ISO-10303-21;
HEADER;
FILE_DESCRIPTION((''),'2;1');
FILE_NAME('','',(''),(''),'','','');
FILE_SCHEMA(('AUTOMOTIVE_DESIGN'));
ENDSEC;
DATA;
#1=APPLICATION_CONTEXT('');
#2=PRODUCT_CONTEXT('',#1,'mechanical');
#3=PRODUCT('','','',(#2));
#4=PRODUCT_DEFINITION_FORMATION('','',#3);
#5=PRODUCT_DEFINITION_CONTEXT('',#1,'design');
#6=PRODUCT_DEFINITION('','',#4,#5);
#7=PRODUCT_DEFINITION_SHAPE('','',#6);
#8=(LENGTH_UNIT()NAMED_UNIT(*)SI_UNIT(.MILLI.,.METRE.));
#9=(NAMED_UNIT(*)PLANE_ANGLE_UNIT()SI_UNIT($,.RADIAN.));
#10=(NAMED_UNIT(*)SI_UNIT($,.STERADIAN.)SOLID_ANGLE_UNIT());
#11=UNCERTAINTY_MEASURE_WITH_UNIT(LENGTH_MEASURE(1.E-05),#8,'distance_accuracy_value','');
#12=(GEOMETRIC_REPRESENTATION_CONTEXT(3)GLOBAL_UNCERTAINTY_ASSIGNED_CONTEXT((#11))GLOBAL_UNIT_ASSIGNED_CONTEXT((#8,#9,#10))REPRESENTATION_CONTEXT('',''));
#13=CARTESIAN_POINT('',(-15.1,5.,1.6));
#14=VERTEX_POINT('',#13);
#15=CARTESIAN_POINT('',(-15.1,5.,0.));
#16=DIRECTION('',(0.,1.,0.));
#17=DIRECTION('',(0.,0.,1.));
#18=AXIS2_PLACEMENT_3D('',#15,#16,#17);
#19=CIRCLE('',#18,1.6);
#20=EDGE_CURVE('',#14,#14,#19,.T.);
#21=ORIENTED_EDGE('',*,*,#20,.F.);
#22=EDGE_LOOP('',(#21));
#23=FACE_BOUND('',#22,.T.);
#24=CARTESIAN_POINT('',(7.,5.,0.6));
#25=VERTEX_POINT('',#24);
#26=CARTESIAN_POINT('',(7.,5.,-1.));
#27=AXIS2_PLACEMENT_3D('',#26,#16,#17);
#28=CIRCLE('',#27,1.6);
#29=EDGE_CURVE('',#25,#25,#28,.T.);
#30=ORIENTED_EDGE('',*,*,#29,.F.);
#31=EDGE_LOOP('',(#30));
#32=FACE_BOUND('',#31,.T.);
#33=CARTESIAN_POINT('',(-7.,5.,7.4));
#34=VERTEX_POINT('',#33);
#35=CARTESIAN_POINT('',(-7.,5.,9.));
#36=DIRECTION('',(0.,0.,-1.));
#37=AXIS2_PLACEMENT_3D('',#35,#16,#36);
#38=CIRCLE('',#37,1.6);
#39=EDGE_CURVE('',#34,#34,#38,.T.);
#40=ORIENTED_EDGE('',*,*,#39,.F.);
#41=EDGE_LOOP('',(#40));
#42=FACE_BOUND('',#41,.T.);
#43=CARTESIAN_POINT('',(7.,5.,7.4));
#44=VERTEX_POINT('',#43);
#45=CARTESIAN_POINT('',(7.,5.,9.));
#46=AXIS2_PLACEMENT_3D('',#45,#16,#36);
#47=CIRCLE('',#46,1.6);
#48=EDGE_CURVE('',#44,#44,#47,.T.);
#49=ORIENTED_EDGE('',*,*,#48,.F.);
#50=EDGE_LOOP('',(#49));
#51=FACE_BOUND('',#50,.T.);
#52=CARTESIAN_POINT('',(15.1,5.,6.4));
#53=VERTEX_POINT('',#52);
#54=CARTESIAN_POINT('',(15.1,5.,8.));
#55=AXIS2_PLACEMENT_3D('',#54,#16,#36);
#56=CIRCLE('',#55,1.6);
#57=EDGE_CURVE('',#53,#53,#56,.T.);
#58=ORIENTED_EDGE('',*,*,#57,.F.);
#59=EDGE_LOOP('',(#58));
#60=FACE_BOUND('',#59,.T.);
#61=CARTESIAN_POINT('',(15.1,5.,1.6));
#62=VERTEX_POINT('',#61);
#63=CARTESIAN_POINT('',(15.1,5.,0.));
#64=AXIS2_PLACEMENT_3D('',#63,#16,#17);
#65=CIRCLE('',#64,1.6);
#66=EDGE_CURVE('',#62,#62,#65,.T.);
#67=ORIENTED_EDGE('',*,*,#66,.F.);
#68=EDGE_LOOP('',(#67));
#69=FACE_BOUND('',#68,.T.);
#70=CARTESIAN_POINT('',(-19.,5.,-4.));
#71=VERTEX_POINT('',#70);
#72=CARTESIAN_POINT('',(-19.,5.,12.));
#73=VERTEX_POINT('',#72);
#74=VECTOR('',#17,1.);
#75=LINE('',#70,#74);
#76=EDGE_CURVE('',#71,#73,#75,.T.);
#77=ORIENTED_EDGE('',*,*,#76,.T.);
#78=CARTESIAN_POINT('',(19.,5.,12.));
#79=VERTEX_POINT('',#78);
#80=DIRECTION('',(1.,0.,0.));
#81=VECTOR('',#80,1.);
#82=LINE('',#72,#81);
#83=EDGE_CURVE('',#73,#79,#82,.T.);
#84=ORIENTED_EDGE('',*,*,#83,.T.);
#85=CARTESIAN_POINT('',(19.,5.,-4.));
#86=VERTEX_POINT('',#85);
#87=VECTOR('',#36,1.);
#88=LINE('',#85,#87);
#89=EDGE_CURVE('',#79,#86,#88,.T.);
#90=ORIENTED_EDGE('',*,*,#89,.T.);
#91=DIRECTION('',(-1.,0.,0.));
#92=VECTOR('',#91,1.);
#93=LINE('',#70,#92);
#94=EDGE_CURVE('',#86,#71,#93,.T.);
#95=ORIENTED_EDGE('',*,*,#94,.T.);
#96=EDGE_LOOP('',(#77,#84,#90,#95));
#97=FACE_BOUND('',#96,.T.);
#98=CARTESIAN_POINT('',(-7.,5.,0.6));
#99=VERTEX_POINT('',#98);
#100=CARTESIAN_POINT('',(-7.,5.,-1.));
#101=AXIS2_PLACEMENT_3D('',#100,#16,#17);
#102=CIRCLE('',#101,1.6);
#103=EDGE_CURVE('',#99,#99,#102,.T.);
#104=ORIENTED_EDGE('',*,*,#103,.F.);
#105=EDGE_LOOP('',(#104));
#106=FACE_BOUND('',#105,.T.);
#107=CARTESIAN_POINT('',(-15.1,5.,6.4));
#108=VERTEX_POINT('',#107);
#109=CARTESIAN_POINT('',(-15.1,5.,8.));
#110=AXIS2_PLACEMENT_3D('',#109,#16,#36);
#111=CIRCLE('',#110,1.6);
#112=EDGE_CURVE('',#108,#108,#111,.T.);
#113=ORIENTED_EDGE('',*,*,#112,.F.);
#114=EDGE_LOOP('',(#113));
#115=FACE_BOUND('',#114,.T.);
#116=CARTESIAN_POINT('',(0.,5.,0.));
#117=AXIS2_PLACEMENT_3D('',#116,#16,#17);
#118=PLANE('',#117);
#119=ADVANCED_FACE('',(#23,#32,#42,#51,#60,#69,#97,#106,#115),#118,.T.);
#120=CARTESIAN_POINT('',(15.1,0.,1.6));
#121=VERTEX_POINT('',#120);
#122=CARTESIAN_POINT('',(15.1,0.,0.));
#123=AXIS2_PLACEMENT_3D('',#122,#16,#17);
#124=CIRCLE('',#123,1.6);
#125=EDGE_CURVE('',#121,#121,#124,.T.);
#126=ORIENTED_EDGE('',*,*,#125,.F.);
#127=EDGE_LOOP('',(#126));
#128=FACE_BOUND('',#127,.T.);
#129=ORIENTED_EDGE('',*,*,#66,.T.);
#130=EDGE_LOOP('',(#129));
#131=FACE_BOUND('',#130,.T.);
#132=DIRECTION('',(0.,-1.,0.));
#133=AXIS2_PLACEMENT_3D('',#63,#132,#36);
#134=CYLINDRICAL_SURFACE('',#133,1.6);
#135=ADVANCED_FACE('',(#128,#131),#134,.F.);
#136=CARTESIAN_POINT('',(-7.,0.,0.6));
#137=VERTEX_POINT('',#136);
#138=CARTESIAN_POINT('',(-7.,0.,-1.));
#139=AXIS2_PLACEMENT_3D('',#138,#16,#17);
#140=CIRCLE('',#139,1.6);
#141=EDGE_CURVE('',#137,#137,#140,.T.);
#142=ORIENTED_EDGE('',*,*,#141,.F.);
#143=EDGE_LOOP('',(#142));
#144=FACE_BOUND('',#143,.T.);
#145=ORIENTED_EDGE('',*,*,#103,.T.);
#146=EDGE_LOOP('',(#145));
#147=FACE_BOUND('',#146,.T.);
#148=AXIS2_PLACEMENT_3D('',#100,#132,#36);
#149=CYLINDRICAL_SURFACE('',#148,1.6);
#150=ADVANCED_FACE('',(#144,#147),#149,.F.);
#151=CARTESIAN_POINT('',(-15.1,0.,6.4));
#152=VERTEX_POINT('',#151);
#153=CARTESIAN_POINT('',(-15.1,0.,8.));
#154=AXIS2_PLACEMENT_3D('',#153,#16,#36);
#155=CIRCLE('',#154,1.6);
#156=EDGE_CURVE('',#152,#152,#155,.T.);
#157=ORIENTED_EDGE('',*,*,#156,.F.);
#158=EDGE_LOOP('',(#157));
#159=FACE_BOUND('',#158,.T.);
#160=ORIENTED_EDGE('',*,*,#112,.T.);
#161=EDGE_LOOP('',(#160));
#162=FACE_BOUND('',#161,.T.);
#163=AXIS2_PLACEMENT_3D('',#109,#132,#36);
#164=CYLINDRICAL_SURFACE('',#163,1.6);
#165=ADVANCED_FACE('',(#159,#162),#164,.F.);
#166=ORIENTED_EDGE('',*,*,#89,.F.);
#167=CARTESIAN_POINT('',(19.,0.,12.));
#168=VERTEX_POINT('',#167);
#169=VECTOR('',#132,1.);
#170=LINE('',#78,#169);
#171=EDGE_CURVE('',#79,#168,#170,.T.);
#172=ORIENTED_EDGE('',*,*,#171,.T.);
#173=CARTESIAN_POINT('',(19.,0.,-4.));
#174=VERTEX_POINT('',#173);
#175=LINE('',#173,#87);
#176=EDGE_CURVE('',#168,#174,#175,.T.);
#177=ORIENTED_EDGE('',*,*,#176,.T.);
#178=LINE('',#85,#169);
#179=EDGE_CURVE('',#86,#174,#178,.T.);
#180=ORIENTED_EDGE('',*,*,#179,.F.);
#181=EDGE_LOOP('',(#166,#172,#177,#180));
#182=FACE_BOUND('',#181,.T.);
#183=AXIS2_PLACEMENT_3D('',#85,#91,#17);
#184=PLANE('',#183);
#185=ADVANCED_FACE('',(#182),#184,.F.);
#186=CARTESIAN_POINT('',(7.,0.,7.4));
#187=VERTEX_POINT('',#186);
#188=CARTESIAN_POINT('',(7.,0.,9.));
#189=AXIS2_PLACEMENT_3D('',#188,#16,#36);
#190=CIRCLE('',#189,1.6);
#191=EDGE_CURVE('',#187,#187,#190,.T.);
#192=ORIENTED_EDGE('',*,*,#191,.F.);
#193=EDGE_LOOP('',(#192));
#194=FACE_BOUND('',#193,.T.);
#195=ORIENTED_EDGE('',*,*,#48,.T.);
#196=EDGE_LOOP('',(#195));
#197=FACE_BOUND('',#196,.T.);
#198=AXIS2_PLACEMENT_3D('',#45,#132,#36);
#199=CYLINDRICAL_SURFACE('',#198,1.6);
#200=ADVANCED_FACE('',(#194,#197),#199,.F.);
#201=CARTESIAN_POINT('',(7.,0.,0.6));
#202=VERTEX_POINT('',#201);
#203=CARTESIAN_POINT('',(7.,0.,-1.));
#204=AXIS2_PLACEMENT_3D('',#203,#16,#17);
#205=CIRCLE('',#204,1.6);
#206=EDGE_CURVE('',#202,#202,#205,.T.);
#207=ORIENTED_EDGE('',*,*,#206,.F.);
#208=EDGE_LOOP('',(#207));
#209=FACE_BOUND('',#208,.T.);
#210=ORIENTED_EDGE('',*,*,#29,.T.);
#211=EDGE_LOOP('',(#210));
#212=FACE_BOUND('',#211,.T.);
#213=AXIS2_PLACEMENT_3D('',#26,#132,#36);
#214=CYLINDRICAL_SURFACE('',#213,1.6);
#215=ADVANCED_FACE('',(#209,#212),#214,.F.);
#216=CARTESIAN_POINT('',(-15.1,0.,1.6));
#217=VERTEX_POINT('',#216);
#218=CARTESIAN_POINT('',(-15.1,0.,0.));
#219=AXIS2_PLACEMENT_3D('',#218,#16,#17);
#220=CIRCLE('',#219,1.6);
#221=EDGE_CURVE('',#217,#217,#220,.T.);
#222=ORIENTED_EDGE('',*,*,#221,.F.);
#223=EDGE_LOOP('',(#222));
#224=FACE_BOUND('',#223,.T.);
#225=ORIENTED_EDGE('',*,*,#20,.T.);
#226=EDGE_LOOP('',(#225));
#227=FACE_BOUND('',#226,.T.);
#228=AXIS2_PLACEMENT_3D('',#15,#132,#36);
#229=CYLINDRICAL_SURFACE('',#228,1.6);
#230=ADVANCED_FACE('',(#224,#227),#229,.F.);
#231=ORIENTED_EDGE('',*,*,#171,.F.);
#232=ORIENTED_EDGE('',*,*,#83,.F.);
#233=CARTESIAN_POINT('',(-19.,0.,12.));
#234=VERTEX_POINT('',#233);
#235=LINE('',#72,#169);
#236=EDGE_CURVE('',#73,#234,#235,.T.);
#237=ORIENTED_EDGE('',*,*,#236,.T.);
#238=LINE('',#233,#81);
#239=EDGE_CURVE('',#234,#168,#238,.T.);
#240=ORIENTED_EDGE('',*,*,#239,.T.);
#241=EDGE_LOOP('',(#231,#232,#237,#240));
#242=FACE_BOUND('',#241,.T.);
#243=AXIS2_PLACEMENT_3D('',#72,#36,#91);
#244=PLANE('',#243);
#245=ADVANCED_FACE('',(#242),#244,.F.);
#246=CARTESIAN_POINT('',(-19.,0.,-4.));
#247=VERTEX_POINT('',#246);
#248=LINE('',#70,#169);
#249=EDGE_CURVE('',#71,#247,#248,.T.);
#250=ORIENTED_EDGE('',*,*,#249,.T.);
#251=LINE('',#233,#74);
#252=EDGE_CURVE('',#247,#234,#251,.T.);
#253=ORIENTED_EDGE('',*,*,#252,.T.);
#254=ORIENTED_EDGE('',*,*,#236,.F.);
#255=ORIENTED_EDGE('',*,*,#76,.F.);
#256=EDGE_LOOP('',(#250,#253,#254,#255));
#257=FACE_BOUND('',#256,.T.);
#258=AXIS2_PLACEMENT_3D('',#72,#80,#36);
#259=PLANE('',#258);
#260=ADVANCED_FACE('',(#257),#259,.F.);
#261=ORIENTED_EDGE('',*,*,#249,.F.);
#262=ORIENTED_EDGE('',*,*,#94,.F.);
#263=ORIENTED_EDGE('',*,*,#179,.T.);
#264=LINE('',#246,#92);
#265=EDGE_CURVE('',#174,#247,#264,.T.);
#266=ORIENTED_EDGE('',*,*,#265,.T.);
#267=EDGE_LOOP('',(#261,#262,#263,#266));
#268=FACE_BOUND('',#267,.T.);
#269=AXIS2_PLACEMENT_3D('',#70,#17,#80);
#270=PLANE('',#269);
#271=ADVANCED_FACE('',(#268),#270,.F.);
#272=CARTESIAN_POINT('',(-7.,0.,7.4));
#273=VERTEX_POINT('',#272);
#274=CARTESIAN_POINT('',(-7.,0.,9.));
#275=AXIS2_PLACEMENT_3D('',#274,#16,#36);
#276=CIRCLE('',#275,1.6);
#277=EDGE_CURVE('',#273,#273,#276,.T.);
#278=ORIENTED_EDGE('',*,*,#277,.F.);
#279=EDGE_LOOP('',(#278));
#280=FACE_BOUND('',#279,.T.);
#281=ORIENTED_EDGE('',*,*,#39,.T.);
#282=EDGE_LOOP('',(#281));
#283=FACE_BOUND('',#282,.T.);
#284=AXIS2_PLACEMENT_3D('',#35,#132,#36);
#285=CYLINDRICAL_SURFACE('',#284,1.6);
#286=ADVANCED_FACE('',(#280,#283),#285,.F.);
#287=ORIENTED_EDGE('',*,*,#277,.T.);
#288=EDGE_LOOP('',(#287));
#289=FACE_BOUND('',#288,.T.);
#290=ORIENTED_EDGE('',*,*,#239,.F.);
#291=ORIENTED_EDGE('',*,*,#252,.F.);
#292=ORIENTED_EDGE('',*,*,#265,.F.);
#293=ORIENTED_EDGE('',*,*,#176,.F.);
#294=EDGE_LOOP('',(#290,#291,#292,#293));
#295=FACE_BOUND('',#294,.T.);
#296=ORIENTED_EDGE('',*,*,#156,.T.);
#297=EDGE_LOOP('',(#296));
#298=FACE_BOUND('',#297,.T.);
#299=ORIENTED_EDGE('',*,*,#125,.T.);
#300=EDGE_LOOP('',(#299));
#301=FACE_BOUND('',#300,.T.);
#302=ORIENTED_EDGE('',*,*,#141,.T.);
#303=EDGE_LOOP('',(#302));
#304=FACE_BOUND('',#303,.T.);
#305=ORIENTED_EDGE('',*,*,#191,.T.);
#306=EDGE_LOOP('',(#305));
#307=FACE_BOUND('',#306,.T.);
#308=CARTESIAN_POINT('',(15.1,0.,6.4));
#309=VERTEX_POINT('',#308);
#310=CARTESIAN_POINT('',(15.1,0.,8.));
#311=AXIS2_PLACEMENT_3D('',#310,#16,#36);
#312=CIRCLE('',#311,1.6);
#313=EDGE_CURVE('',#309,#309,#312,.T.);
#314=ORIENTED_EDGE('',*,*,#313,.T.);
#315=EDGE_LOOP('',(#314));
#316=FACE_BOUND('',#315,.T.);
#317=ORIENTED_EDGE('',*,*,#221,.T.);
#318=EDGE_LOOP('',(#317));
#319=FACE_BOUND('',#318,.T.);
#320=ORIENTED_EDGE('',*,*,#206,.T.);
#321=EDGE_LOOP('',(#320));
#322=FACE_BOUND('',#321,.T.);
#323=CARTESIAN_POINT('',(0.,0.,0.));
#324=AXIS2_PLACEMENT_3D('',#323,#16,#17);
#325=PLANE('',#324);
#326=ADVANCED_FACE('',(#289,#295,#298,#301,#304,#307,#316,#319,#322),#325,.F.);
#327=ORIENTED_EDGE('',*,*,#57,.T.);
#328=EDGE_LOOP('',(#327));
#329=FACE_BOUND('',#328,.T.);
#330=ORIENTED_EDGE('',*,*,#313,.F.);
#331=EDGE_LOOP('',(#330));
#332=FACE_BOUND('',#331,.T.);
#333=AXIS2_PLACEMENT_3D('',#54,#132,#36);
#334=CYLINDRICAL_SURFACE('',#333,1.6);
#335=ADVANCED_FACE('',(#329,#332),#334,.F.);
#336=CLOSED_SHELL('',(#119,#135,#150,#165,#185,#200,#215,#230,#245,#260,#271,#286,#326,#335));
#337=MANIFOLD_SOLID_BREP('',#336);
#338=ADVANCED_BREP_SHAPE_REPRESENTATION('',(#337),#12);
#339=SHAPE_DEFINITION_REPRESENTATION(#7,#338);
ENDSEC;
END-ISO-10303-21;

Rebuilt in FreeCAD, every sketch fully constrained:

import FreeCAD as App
import Part
import Sketcher

V = App.Vector
Q = App.Units.Quantity


def add_polygon(sketch, points):
    """Adds a closed chain of lines whose ends are joined by coincident constraints."""
    first, n = sketch.GeometryCount, len(points)
    for a, b in zip(points, points[1:] + points[:1]):
        sketch.addGeometry(Part.LineSegment(App.Vector(*a, 0), App.Vector(*b, 0)), False)
    for i in range(n):
        sketch.addConstraint(Sketcher.Constraint("Coincident", first + i, 2, first + (i + 1) % n, 1))

doc = App.newDocument("Part")
body = doc.addObject("PartDesign::Body", "Body")

# Sketch on XZ plane
sketch1 = body.newObject("Sketcher::SketchObject", "Sketch")
sketch1.AttachmentSupport = (doc.getObject("XZ_Plane"), [""])
sketch1.MapMode = "FlatFace"
add_polygon(sketch1, [(19, -4), (-19, -4), (-19, 12), (19, 12)])  # lines 0-3
sketch1.addGeometry(Part.Circle(V(15.1, 8, 0), V(0, 0, 1), 1.6), False)  # 4
sketch1.addGeometry(Part.Circle(V(7, 9, 0), V(0, 0, 1), 1.6), False)  # 5
sketch1.addGeometry(Part.Circle(V(-7, 9, 0), V(0, 0, 1), 1.6), False)  # 6
sketch1.addGeometry(Part.Circle(V(-15.1, 8, 0), V(0, 0, 1), 1.6), False)  # 7
sketch1.addGeometry(Part.Circle(V(15.1, 0, 0), V(0, 0, 1), 1.6), False)  # 8
sketch1.addGeometry(Part.Circle(V(7, -1, 0), V(0, 0, 1), 1.6), False)  # 9
sketch1.addGeometry(Part.Circle(V(-7, -1, 0), V(0, 0, 1), 1.6), False)  # 10
sketch1.addGeometry(Part.Circle(V(-15.1, 0, 0), V(0, 0, 1), 1.6), False)  # 11
sketch1.addConstraint([
    Sketcher.Constraint("Horizontal", 0),
    Sketcher.Constraint("Vertical", 1),
    Sketcher.Constraint("Horizontal", 2),
    Sketcher.Constraint("Vertical", 3),
    Sketcher.Constraint("Equal", 4, 5),
    Sketcher.Constraint("Equal", 5, 6),
    Sketcher.Constraint("Equal", 6, 7),
    Sketcher.Constraint("Equal", 7, 8),
    Sketcher.Constraint("Equal", 8, 9),
    Sketcher.Constraint("Equal", 9, 10),
    Sketcher.Constraint("Equal", 10, 11),
    Sketcher.Constraint("Symmetric", 8, 3, 11, 3, -1, 1),
    Sketcher.Constraint("Symmetric", 5, 3, 6, 3, -2),
    Sketcher.Constraint("Symmetric", 4, 3, 7, 3, -2),
    Sketcher.Constraint("Symmetric", 9, 3, 10, 3, -2),
    Sketcher.Constraint("PointOnObject", 8, 3, -1),
    Sketcher.Constraint("Vertical", 4, 3, 8, 3),
    Sketcher.Constraint("Vertical", 5, 3, 9, 3),
    Sketcher.Constraint("Diameter", 4, Q("3.2 mm")),
    Sketcher.Constraint("DistanceX", 0, 2, 0, 1, Q("38 mm")),
    Sketcher.Constraint("DistanceY", 1, 1, 1, 2, Q("16 mm")),
    Sketcher.Constraint("DistanceY", -1, 1, 4, 3, Q("8 mm")),
    Sketcher.Constraint("DistanceX", -1, 1, 5, 3, Q("7 mm")),
    Sketcher.Constraint("DistanceY", -1, 1, 5, 3, Q("9 mm")),
    Sketcher.Constraint("DistanceY", 9, 3, -1, 1, Q("1 mm")),
    Sketcher.Constraint("DistanceX", 0, 2, -1, 1, Q("19 mm")),
    Sketcher.Constraint("DistanceY", 0, 2, -1, 1, Q("4 mm")),
    Sketcher.Constraint("DistanceX", -1, 1, 4, 3, Q("15.1 mm")),
])
pad1 = body.newObject("PartDesign::Pad", "Pad")
pad1.Profile = sketch1
pad1.Length = 5
pad1.Reversed = True

doc.recompute()
